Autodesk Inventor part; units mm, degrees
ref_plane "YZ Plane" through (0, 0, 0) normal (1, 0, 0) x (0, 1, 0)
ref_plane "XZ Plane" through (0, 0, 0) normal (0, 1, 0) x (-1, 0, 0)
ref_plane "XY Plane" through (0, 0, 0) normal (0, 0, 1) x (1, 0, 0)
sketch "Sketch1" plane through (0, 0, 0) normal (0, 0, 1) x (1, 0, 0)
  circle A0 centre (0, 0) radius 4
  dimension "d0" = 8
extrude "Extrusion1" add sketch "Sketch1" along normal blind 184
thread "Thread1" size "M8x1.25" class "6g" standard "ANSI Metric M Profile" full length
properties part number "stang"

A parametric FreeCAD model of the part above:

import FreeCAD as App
import Part
import Sketcher
Q = App.Units.Quantity

doc = App.newDocument("Part")
params = doc.addObject("Spreadsheet::Sheet", "Params")
for row, (alias, value) in enumerate([
    ("sketch1_diameter", "8 mm"),
    ("pad1_length", "184 mm"),
], start=1):
    params.set(f"A{row}", alias)
    params.set(f"B{row}", "=" + value)
    params.setAlias(f"B{row}", alias)

body = doc.addObject("PartDesign::Body", "Body")

sketch1 = doc.addObject("Sketcher::SketchObject", "Sketch")
body.addObject(sketch1)
sketch1.AttachmentSupport = (doc.XY_Plane, [""])
sketch1.MapMode = "FlatFace"
sketch1.addGeometry(Part.Circle(App.Vector(0, 0, 0), App.Vector(0, 0, 1), 4), False)
sketch1.addConstraint([
    Sketcher.Constraint("Coincident", 0, 3, -1, 1),
    Sketcher.Constraint("Diameter", 0, Q("8 mm")),
])
sketch1.setExpression("Constraints[1]", "Params.sketch1_diameter")
pad1 = doc.addObject("PartDesign::Pad", "Pad")
body.addObject(pad1)
pad1.Profile = sketch1
pad1.setExpression("Length", "Params.pad1_length")

doc.recompute()
